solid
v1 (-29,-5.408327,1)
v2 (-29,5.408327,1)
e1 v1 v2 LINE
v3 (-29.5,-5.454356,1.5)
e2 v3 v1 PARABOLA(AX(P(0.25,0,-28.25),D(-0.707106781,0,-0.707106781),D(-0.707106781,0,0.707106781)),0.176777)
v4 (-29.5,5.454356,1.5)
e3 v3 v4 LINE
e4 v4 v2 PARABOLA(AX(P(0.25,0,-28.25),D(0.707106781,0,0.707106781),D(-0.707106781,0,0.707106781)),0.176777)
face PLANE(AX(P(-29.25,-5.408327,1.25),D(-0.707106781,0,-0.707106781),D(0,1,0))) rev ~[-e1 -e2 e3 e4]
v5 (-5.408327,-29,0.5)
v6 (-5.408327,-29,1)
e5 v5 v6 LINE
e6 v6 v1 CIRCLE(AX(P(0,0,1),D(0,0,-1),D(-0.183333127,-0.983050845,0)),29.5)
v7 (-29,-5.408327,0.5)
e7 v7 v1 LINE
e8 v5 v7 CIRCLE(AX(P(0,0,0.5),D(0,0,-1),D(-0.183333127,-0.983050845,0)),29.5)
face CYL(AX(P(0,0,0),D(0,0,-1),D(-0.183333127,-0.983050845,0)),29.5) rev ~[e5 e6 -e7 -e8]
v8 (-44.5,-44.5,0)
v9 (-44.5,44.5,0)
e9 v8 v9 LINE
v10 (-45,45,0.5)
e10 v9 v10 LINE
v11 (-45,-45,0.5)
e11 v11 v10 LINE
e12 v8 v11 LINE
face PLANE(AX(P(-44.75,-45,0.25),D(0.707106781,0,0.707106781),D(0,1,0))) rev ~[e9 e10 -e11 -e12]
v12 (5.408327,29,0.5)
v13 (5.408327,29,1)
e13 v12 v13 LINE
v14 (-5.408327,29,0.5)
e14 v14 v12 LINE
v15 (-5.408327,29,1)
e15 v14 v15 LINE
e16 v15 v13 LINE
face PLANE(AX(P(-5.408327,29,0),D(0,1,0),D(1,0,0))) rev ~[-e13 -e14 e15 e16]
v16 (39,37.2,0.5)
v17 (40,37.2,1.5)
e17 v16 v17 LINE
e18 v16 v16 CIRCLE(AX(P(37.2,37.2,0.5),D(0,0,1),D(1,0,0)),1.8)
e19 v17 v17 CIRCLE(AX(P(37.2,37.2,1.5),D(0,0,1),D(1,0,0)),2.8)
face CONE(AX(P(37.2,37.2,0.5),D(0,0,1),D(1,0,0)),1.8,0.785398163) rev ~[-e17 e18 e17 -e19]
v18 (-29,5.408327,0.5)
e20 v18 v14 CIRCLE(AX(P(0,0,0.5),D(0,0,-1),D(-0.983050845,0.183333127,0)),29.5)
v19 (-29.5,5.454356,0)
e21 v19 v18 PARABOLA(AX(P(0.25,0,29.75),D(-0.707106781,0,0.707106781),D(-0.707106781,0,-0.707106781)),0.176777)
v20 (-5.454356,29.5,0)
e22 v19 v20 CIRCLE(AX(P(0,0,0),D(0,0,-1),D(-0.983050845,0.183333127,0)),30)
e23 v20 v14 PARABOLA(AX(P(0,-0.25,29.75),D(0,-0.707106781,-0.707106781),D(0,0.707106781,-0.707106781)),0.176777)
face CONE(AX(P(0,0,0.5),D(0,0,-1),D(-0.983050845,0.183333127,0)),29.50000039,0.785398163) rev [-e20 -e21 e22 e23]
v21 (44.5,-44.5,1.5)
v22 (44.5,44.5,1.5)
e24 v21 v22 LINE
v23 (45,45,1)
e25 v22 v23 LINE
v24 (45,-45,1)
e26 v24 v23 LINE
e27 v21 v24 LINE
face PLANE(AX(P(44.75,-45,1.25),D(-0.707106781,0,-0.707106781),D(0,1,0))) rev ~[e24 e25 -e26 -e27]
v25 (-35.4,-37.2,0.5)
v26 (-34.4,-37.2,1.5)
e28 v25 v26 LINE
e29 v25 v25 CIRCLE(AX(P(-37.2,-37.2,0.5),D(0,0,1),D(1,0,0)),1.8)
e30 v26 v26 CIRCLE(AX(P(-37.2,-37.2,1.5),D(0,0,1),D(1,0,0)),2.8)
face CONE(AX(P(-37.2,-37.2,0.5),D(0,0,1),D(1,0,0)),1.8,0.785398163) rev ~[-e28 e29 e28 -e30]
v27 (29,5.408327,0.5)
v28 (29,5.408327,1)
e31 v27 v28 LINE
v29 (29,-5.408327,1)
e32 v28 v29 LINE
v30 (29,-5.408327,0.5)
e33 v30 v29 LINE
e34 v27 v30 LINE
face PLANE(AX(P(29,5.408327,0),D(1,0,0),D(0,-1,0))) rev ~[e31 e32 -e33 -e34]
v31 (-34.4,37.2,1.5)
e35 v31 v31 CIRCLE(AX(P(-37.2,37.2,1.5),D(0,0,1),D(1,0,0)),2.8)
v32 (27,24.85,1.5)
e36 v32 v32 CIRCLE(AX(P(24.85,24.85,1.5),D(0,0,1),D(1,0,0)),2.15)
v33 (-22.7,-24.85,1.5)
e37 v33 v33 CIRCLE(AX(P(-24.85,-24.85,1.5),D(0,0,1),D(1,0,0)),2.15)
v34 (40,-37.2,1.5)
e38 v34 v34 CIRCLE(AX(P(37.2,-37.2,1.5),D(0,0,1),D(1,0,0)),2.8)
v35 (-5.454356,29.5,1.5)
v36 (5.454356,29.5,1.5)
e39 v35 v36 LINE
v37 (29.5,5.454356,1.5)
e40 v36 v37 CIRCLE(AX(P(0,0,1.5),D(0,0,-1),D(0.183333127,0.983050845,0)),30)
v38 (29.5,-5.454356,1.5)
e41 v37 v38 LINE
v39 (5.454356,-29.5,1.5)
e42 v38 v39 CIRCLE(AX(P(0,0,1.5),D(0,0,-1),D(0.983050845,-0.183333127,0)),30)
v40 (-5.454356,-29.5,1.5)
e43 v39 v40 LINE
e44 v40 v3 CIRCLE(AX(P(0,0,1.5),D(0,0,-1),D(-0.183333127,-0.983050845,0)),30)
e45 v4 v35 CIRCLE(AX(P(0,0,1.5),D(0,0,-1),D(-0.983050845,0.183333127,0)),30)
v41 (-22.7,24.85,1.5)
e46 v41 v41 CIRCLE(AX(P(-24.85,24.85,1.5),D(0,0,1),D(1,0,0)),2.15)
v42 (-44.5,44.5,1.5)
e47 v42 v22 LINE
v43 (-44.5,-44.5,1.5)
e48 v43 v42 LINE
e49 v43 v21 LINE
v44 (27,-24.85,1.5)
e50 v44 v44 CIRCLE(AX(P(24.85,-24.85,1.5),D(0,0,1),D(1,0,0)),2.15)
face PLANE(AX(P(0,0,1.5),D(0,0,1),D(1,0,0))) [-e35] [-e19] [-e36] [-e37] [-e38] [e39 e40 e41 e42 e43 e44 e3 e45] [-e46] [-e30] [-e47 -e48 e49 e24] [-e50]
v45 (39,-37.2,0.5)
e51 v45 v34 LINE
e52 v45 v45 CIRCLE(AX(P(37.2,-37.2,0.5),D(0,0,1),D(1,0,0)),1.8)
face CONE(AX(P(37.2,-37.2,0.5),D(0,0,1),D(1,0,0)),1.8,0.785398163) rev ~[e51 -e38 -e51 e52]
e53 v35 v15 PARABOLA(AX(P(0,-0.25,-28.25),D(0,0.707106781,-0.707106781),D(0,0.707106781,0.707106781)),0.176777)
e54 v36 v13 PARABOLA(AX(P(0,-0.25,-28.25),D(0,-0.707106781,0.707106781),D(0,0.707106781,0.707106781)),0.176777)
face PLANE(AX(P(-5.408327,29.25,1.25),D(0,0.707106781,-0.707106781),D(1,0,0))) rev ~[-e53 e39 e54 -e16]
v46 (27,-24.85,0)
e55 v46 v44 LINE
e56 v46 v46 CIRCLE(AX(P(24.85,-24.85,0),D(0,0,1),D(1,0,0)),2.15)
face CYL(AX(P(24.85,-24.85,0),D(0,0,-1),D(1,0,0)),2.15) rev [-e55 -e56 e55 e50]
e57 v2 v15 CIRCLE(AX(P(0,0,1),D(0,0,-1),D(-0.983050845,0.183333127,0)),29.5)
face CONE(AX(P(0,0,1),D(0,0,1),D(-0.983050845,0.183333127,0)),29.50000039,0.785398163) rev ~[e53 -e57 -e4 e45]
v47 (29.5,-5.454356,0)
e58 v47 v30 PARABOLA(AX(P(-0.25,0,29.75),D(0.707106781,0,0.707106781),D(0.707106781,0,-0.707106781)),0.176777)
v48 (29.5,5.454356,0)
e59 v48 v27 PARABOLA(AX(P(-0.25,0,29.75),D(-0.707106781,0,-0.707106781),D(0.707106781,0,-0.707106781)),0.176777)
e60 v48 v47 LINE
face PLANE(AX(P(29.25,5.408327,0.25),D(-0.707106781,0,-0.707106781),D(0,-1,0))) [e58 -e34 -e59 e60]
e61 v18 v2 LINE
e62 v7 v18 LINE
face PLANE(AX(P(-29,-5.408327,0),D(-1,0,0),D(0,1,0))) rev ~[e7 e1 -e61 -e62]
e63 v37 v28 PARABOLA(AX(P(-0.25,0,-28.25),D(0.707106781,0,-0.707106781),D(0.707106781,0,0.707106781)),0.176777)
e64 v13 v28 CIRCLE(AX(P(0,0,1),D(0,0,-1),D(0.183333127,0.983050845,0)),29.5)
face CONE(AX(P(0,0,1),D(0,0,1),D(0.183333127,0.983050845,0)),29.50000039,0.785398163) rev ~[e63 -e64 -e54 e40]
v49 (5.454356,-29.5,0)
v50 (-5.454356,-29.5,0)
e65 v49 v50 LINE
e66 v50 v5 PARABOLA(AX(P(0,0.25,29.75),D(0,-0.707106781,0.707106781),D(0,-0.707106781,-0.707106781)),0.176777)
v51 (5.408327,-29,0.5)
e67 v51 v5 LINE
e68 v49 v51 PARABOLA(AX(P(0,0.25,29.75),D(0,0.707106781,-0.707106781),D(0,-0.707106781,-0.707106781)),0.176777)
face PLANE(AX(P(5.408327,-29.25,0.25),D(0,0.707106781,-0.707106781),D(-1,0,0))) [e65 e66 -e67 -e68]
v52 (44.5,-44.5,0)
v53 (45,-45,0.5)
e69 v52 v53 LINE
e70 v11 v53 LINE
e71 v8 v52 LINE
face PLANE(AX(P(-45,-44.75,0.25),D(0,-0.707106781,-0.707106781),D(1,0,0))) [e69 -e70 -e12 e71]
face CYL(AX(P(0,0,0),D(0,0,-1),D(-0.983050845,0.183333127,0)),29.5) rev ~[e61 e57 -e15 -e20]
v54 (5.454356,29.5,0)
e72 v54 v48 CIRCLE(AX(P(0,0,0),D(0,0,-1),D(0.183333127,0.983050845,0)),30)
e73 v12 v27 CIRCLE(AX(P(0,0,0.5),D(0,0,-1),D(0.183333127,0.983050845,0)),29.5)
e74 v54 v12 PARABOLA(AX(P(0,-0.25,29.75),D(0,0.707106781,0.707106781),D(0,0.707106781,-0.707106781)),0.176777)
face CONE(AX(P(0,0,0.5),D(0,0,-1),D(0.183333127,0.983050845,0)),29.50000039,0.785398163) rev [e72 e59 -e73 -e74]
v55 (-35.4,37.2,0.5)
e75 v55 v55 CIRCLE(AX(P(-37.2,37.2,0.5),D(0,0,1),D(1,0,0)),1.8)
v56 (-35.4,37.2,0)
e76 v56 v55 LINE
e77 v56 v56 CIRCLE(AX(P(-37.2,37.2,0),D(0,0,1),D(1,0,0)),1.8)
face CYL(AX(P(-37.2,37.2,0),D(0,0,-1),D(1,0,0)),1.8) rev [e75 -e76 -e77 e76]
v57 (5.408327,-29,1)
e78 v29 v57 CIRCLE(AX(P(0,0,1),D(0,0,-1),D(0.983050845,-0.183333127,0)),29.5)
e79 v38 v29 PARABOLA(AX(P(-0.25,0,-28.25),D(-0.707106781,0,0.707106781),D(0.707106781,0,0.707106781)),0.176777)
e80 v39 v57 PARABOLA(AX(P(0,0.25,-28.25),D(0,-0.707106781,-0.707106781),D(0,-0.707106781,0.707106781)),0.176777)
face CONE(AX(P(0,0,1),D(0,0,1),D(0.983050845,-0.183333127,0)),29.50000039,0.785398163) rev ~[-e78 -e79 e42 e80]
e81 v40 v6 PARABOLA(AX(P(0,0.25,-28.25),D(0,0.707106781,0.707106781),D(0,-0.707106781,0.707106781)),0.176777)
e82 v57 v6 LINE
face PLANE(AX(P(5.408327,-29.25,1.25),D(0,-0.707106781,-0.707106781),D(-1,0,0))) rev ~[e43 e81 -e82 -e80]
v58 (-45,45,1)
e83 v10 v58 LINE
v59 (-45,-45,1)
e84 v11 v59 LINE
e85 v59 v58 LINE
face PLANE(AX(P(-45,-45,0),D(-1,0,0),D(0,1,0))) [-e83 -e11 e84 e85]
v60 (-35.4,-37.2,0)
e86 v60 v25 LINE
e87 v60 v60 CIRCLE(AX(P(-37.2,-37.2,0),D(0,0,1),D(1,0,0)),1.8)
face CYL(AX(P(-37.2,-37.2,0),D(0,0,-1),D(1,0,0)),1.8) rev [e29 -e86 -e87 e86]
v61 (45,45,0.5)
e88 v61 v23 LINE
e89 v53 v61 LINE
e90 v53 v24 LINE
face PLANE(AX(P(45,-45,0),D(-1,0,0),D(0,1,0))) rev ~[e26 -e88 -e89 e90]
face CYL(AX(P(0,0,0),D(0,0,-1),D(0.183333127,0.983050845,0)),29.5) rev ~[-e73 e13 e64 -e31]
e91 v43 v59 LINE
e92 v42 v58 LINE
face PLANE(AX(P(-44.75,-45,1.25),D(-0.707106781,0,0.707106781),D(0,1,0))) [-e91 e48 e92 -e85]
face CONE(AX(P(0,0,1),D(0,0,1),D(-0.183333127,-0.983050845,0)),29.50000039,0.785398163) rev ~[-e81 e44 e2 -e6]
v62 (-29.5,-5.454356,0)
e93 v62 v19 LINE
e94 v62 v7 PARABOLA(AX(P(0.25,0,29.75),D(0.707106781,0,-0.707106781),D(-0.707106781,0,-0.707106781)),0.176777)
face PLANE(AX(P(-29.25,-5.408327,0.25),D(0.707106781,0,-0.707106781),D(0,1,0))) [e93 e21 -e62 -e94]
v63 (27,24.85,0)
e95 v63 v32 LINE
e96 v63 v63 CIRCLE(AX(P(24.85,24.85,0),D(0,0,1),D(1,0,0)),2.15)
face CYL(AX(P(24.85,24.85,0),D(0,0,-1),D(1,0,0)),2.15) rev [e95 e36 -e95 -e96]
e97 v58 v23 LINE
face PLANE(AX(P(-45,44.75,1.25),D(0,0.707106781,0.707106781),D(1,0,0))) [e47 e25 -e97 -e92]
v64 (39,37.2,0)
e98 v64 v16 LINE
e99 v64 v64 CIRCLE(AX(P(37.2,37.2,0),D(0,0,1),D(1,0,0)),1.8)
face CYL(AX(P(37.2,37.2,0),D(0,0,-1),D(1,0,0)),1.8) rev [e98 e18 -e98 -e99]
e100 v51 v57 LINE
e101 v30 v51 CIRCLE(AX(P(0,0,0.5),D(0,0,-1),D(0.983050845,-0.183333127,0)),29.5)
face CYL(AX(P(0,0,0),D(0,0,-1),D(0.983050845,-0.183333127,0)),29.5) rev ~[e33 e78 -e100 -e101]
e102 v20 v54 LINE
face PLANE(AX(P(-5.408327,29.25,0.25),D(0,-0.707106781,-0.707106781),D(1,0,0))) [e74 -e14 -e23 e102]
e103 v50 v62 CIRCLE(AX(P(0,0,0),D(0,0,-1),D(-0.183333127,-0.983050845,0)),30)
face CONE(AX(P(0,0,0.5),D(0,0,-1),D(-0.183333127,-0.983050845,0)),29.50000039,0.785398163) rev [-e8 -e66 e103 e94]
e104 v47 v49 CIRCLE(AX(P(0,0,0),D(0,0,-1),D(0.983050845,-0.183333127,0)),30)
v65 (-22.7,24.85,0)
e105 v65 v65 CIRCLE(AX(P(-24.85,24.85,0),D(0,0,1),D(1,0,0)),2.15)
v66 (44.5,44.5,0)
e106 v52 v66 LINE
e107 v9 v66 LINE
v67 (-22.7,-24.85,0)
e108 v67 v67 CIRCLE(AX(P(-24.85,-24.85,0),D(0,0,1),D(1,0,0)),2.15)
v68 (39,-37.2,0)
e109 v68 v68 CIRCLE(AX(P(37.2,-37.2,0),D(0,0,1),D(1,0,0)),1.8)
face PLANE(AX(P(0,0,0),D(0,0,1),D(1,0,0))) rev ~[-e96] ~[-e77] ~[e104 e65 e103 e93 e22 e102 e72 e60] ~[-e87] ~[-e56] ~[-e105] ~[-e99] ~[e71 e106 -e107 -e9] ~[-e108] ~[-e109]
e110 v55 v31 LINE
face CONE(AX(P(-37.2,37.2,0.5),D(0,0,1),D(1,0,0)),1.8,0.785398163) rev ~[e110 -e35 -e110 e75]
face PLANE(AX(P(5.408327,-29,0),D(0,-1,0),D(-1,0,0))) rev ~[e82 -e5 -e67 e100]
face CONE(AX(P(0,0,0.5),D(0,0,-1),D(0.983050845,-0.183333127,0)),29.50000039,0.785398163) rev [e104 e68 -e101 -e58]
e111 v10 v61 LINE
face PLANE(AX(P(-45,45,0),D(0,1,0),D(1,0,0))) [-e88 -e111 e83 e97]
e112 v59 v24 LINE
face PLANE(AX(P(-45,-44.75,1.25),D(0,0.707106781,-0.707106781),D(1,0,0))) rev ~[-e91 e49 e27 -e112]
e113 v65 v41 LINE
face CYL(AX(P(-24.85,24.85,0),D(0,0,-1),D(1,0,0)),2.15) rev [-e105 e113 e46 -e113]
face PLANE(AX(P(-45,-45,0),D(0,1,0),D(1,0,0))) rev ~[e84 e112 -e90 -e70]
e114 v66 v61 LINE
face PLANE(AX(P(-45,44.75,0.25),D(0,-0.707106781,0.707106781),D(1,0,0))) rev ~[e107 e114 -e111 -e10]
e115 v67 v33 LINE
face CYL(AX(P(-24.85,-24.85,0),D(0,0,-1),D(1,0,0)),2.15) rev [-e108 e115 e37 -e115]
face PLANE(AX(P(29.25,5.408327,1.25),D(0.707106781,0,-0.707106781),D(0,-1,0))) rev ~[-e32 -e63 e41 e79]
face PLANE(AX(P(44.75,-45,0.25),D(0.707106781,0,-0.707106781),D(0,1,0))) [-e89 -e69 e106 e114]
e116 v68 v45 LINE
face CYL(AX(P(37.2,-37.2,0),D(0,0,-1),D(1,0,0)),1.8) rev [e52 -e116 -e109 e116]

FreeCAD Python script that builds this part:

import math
import FreeCAD as App
import Part
import Sketcher

V = App.Vector


def edges_at(feature, points):
    """Names of the edges that pass closest to the given points."""
    edges = feature.Shape.Edges
    near = lambda p: min(range(len(edges)), key=lambda i: edges[i].distToShape(Part.Vertex(*p))[0])
    return sorted({f"Edge{near(p) + 1}" for p in points})


def add_polygon(sketch, points):
    """Adds a closed chain of lines whose ends are joined by coincident constraints."""
    first, n = sketch.GeometryCount, len(points)
    for a, b in zip(points, points[1:] + points[:1]):
        sketch.addGeometry(Part.LineSegment(App.Vector(*a, 0), App.Vector(*b, 0)), False)
    for i in range(n):
        sketch.addConstraint(Sketcher.Constraint("Coincident", first + i, 2, first + (i + 1) % n, 1))

doc = App.newDocument("Part")
body = doc.addObject("PartDesign::Body", "Body")

sketch1 = body.newObject("Sketcher::SketchObject", "Sketch")
sketch1.AttachmentSupport = (doc.getObject("XY_Plane"), [""])
sketch1.MapMode = "FlatFace"
add_polygon(sketch1, [(-45, 45), (-45, -45), (45, -45), (45, 45)])
sketch1.addGeometry(Part.Circle(V(-37.2, -37.2, 0), V(0, 0, 1), 1.8), False)
sketch1.addGeometry(Part.Circle(V(-24.9, -24.9, 0), V(0, 0, 1), 2.1), False)
sketch1.addGeometry(Part.Circle(V(37.2, -37.2, 0), V(0, 0, 1), 1.8), False)
sketch1.addGeometry(Part.Circle(V(24.9, -24.9, 0), V(0, 0, 1), 2.1), False)
sketch1.addGeometry(Part.Circle(V(-24.9, 24.9, 0), V(0, 0, 1), 2.1), False)
sketch1.addGeometry(Part.Circle(V(-37.2, 37.2, 0), V(0, 0, 1), 1.8), False)
sketch1.addGeometry(Part.ArcOfCircle(Part.Circle(V(0, 0, 0), V(0, 0, 1), 29.5), math.radians(101), math.radians(169)), False)
sketch1.addGeometry(Part.LineSegment(V(-5.4, 29, 0), V(5.4, 29, 0)), False)
sketch1.addGeometry(Part.ArcOfCircle(Part.Circle(V(0, 0, 0), V(0, 0, 1), 29.5), math.radians(11), math.radians(79)), False)
sketch1.addGeometry(Part.LineSegment(V(29, 5.4, 0), V(29, -5.4, 0)), False)
sketch1.addGeometry(Part.ArcOfCircle(Part.Circle(V(0, 0, 0), V(0, 0, 1), 29.5), math.radians(-79), math.radians(-11)), False)
sketch1.addGeometry(Part.LineSegment(V(5.4, -29, 0), V(-5.4, -29, 0)), False)
sketch1.addGeometry(Part.ArcOfCircle(Part.Circle(V(0, 0, 0), V(0, 0, 1), 29.5), math.radians(-169), math.radians(-101)), False)
sketch1.addGeometry(Part.LineSegment(V(-29, -5.4, 0), V(-29, 5.4, 0)), False)
sketch1.addGeometry(Part.Circle(V(24.9, 24.9, 0), V(0, 0, 1), 2.1), False)
sketch1.addGeometry(Part.Circle(V(37.2, 37.2, 0), V(0, 0, 1), 1.8), False)
sketch1.addConstraint([
    Sketcher.Constraint("Coincident", 10, 1, 11, 1),
    Sketcher.Constraint("Coincident", 11, 2, 12, 2),
    Sketcher.Constraint("Coincident", 12, 1, 13, 1),
    Sketcher.Constraint("Coincident", 13, 2, 14, 2),
    Sketcher.Constraint("Coincident", 14, 1, 15, 1),
    Sketcher.Constraint("Coincident", 15, 2, 16, 2),
    Sketcher.Constraint("Coincident", 16, 1, 17, 1),
    Sketcher.Constraint("Coincident", 17, 2, 10, 2),
    Sketcher.Constraint("Vertical", 0),
    Sketcher.Constraint("Horizontal", 1),
    Sketcher.Constraint("Vertical", 2),
    Sketcher.Constraint("Horizontal", 3),
    Sketcher.Constraint("Horizontal", 11),
    Sketcher.Constraint("Vertical", 13),
    Sketcher.Constraint("Horizontal", 15),
    Sketcher.Constraint("Vertical", 17),
    Sketcher.Constraint("Coincident", 10, 3, -1, 1),
    Sketcher.Constraint("Coincident", 12, 3, -1, 1),
    Sketcher.Constraint("Coincident", 14, 3, -1, 1),
    Sketcher.Constraint("Coincident", 16, 3, -1, 1),
    Sketcher.Constraint("Equal", 4, 6),
    Sketcher.Constraint("Equal", 5, 7),
    Sketcher.Constraint("Equal", 7, 8),
    Sketcher.Constraint("Equal", 6, 9),
    Sketcher.Constraint("Equal", 10, 12),
    Sketcher.Constraint("Equal", 12, 14),
    Sketcher.Constraint("Equal", 14, 16),
    Sketcher.Constraint("Equal", 8, 18),
    Sketcher.Constraint("Equal", 9, 19),
    Sketcher.Constraint("Symmetric", 7, 3, 8, 3, -1, 1),
    Sketcher.Constraint("Symmetric", 6, 3, 9, 3, -1, 1),
    Sketcher.Constraint("Symmetric", 5, 3, 18, 3, -1, 1),
    Sketcher.Constraint("Symmetric", 4, 3, 19, 3, -1, 1),
    Sketcher.Constraint("Symmetric", 0, 2, 2, 2, -1, 1),
    Sketcher.Constraint("Symmetric", 4, 3, 6, 3, -2),
    Sketcher.Constraint("Symmetric", 5, 3, 7, 3, -2),
    Sketcher.Constraint("Horizontal", 13, 2, 16, 1),
    Sketcher.Constraint("Vertical", 11, 2, 14, 1),
    Sketcher.Constraint("Equal", 3, 0),
    Sketcher.Constraint("Equal", 15, 13),
    Sketcher.Constraint("Diameter", 4, 3.6),
    Sketcher.Constraint("Diameter", 5, 4.3),
    Sketcher.Constraint("Radius", 10, 29.5),
    Sketcher.Constraint("DistanceX", 1, 1, 1, 2, 90.0),
    Sketcher.Constraint("DistanceY", -1, 1, 10, 1, 29.0),
    Sketcher.Constraint("DistanceX", 4, 3, -1, 1, 37.2),
    Sketcher.Constraint("DistanceY", 4, 3, -1, 1, 37.2),
    Sketcher.Constraint("DistanceX", 5, 3, 7, 3, 49.7),
    Sketcher.Constraint("DistanceY", 5, 3, 8, 3, 49.7),
])
pad1 = body.newObject("PartDesign::Pad", "Pad")
pad1.Profile = sketch1
pad1.Length = 1.5
doc.recompute()

chamfer = body.newObject("PartDesign::Chamfer", "Chamfer")
chamfer.Base = (pad1, edges_at(pad1, [
    (-39, 37.2, 1.5),
    (35.4, 37.2, 1.5),
    (35.4, -37.2, 1.5),
    (-39, -37.2, 1.5),
]))
chamfer.ChamferType = "Two distances"
chamfer.Size = 1
chamfer.Size2 = 1
doc.recompute()

chamfer2 = body.newObject("PartDesign::Chamfer", "Chamfer001")
chamfer2.Base = (chamfer, edges_at(chamfer, [
    (0, -45, 0),
    (-45, 0, 0),
    (45, 0, 0),
    (0, 45, 0),
    (-45, 0, 1.5),
    (0, -45, 1.5),
    (45, 0, 1.5),
    (0, 45, 1.5),
    (-20.86, -20.86, 0),
    (-20.86, -20.86, 1.5),
    (0, -29, 0),
    (0, -29, 1.5),
    (20.86, -20.86, 0),
    (20.86, -20.86, 1.5),
    (-29, 0, 0),
    (-29, 0, 1.5),
    (-20.86, 20.86, 1.5),
    (-20.86, 20.86, 0),
    (20.86, 20.86, 1.5),
    (29, 0, 1.5),
    (0, 29, 1.5),
    (29, 0, 0),
    (20.86, 20.86, 0),
    (0, 29, 0),
]))
chamfer2.Size = 0.5

doc.recompute()
